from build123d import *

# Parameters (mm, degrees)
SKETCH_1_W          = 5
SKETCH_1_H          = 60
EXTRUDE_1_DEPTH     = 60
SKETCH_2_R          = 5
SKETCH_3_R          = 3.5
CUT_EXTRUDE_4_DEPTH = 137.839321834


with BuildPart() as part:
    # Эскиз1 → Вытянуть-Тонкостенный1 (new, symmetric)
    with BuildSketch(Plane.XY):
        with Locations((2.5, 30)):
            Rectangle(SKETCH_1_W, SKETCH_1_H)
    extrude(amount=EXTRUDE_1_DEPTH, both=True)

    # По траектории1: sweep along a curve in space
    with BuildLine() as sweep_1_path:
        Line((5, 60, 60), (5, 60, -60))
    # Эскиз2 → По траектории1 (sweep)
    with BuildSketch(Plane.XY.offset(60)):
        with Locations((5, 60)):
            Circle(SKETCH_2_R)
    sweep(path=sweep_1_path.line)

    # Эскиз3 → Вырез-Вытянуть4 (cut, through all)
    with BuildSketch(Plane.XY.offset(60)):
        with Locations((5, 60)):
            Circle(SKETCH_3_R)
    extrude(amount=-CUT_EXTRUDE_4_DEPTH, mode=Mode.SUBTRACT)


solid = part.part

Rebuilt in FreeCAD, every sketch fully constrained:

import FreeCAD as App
import Part
import Sketcher

V = App.Vector
Q = App.Units.Quantity


def add_polygon(sketch, points):
    """Adds a closed chain of lines whose ends are joined by coincident constraints."""
    first, n = sketch.GeometryCount, len(points)
    for a, b in zip(points, points[1:] + points[:1]):
        sketch.addGeometry(Part.LineSegment(App.Vector(*a, 0), App.Vector(*b, 0)), False)
    for i in range(n):
        sketch.addConstraint(Sketcher.Constraint("Coincident", first + i, 2, first + (i + 1) % n, 1))

doc = App.newDocument("Part")
params = doc.addObject("Spreadsheet::Sheet", "Params")
for row, (alias, value) in enumerate([
    ("sketch1_width", "5 mm"),
    ("sketch1_height", "60 mm"),
    ("pad1_length", "120 mm"),
    ("sketch2_diameter", "10 mm"),
    ("sketch3_height", "120 mm"),
    ("sketch4_diameter", "7 mm"),
], start=1):
    params.set(f"A{row}", alias)
    params.set(f"B{row}", "=" + value)
    params.setAlias(f"B{row}", alias)

body = doc.addObject("PartDesign::Body", "Body")

# Sketch on XY plane
sketch1 = body.newObject("Sketcher::SketchObject", "Sketch")
sketch1.AttachmentSupport = (doc.getObject("XY_Plane"), [""])
sketch1.MapMode = "FlatFace"
add_polygon(sketch1, [(0, 60), (0, 0), (5, 0), (5, 60)])  # lines 0-3
sketch1.addConstraint([
    Sketcher.Constraint("Vertical", 0),
    Sketcher.Constraint("Horizontal", 1),
    Sketcher.Constraint("Vertical", 2),
    Sketcher.Constraint("Horizontal", 3),
    Sketcher.Constraint("Coincident", 0, 2, -1, 1),
    Sketcher.Constraint("DistanceX", 1, 1, 1, 2, Q("5 mm")),
    Sketcher.Constraint("DistanceY", 0, 2, 0, 1, Q("60 mm")),
])
sketch1.setExpression("Constraints[9]", "Params.sketch1_width")
sketch1.setExpression("Constraints[10]", "Params.sketch1_height")
pad1 = body.newObject("PartDesign::Pad", "Pad")
pad1.Profile = sketch1
pad1.setExpression("Length", "Params.pad1_length")
pad1.Midplane = True

# Sketch on XY plane
sketch2 = body.newObject("Sketcher::SketchObject", "Sketch001")
sketch2.AttachmentSupport = (doc.getObject("XY_Plane"), [""])
sketch2.MapMode = "FlatFace"
sketch2.AttachmentOffset = App.Placement(V(0, 0, 60), App.Rotation())
sketch2.addGeometry(Part.Circle(V(5, 60, 0), V(0, 0, 1), 5), False)
sketch2.addConstraint([
    Sketcher.Constraint("Diameter", 0, Q("10 mm")),
    Sketcher.Constraint("DistanceX", -1, 1, 0, 3, Q("5 mm")),
    Sketcher.Constraint("DistanceY", -1, 1, 0, 3, Q("60 mm")),
])
sketch2.setExpression("Constraints[0]", "Params.sketch2_diameter")

# Sketch on XZ plane
sketch3 = body.newObject("Sketcher::SketchObject", "Sketch002")
sketch3.AttachmentSupport = (doc.getObject("XZ_Plane"), [""])
sketch3.MapMode = "FlatFace"
sketch3.AttachmentOffset = App.Placement(V(0, 0, -60), App.Rotation())
sketch3.addGeometry(Part.LineSegment(V(5, 60, 0), V(5, -60, 0)), False)
sketch3.addConstraint([
    Sketcher.Constraint("Vertical", 0),
    Sketcher.Constraint("DistanceY", 0, 2, 0, 1, Q("120 mm")),
    Sketcher.Constraint("DistanceX", -1, 1, 0, 1, Q("5 mm")),
    Sketcher.Constraint("DistanceY", -1, 1, 0, 1, Q("60 mm")),
])
sketch3.setExpression("Constraints[1]", "Params.sketch3_height")
doc.recompute()

additivepipe = body.newObject("PartDesign::AdditivePipe", "AdditivePipe")
additivepipe.Profile = sketch2
additivepipe.Spine = (sketch3, ["Edge1"])

# Sketch on XY plane
sketch4 = body.newObject("Sketcher::SketchObject", "Sketch003")
sketch4.AttachmentSupport = (doc.getObject("XY_Plane"), [""])
sketch4.MapMode = "FlatFace"
sketch4.AttachmentOffset = App.Placement(V(0, 0, 60), App.Rotation())
sketch4.addGeometry(Part.Circle(V(5, 60, 0), V(0, 0, 1), 3.5), False)
sketch4.addConstraint([
    Sketcher.Constraint("Diameter", 0, Q("7 mm")),
    Sketcher.Constraint("DistanceX", -1, 1, 0, 3, Q("5 mm")),
    Sketcher.Constraint("DistanceY", -1, 1, 0, 3, Q("60 mm")),
])
sketch4.setExpression("Constraints[0]", "Params.sketch4_diameter")
pocket1 = body.newObject("PartDesign::Pocket", "Pocket")
pocket1.Profile = sketch4
pocket1.Type = "ThroughAll"

doc.recompute()
